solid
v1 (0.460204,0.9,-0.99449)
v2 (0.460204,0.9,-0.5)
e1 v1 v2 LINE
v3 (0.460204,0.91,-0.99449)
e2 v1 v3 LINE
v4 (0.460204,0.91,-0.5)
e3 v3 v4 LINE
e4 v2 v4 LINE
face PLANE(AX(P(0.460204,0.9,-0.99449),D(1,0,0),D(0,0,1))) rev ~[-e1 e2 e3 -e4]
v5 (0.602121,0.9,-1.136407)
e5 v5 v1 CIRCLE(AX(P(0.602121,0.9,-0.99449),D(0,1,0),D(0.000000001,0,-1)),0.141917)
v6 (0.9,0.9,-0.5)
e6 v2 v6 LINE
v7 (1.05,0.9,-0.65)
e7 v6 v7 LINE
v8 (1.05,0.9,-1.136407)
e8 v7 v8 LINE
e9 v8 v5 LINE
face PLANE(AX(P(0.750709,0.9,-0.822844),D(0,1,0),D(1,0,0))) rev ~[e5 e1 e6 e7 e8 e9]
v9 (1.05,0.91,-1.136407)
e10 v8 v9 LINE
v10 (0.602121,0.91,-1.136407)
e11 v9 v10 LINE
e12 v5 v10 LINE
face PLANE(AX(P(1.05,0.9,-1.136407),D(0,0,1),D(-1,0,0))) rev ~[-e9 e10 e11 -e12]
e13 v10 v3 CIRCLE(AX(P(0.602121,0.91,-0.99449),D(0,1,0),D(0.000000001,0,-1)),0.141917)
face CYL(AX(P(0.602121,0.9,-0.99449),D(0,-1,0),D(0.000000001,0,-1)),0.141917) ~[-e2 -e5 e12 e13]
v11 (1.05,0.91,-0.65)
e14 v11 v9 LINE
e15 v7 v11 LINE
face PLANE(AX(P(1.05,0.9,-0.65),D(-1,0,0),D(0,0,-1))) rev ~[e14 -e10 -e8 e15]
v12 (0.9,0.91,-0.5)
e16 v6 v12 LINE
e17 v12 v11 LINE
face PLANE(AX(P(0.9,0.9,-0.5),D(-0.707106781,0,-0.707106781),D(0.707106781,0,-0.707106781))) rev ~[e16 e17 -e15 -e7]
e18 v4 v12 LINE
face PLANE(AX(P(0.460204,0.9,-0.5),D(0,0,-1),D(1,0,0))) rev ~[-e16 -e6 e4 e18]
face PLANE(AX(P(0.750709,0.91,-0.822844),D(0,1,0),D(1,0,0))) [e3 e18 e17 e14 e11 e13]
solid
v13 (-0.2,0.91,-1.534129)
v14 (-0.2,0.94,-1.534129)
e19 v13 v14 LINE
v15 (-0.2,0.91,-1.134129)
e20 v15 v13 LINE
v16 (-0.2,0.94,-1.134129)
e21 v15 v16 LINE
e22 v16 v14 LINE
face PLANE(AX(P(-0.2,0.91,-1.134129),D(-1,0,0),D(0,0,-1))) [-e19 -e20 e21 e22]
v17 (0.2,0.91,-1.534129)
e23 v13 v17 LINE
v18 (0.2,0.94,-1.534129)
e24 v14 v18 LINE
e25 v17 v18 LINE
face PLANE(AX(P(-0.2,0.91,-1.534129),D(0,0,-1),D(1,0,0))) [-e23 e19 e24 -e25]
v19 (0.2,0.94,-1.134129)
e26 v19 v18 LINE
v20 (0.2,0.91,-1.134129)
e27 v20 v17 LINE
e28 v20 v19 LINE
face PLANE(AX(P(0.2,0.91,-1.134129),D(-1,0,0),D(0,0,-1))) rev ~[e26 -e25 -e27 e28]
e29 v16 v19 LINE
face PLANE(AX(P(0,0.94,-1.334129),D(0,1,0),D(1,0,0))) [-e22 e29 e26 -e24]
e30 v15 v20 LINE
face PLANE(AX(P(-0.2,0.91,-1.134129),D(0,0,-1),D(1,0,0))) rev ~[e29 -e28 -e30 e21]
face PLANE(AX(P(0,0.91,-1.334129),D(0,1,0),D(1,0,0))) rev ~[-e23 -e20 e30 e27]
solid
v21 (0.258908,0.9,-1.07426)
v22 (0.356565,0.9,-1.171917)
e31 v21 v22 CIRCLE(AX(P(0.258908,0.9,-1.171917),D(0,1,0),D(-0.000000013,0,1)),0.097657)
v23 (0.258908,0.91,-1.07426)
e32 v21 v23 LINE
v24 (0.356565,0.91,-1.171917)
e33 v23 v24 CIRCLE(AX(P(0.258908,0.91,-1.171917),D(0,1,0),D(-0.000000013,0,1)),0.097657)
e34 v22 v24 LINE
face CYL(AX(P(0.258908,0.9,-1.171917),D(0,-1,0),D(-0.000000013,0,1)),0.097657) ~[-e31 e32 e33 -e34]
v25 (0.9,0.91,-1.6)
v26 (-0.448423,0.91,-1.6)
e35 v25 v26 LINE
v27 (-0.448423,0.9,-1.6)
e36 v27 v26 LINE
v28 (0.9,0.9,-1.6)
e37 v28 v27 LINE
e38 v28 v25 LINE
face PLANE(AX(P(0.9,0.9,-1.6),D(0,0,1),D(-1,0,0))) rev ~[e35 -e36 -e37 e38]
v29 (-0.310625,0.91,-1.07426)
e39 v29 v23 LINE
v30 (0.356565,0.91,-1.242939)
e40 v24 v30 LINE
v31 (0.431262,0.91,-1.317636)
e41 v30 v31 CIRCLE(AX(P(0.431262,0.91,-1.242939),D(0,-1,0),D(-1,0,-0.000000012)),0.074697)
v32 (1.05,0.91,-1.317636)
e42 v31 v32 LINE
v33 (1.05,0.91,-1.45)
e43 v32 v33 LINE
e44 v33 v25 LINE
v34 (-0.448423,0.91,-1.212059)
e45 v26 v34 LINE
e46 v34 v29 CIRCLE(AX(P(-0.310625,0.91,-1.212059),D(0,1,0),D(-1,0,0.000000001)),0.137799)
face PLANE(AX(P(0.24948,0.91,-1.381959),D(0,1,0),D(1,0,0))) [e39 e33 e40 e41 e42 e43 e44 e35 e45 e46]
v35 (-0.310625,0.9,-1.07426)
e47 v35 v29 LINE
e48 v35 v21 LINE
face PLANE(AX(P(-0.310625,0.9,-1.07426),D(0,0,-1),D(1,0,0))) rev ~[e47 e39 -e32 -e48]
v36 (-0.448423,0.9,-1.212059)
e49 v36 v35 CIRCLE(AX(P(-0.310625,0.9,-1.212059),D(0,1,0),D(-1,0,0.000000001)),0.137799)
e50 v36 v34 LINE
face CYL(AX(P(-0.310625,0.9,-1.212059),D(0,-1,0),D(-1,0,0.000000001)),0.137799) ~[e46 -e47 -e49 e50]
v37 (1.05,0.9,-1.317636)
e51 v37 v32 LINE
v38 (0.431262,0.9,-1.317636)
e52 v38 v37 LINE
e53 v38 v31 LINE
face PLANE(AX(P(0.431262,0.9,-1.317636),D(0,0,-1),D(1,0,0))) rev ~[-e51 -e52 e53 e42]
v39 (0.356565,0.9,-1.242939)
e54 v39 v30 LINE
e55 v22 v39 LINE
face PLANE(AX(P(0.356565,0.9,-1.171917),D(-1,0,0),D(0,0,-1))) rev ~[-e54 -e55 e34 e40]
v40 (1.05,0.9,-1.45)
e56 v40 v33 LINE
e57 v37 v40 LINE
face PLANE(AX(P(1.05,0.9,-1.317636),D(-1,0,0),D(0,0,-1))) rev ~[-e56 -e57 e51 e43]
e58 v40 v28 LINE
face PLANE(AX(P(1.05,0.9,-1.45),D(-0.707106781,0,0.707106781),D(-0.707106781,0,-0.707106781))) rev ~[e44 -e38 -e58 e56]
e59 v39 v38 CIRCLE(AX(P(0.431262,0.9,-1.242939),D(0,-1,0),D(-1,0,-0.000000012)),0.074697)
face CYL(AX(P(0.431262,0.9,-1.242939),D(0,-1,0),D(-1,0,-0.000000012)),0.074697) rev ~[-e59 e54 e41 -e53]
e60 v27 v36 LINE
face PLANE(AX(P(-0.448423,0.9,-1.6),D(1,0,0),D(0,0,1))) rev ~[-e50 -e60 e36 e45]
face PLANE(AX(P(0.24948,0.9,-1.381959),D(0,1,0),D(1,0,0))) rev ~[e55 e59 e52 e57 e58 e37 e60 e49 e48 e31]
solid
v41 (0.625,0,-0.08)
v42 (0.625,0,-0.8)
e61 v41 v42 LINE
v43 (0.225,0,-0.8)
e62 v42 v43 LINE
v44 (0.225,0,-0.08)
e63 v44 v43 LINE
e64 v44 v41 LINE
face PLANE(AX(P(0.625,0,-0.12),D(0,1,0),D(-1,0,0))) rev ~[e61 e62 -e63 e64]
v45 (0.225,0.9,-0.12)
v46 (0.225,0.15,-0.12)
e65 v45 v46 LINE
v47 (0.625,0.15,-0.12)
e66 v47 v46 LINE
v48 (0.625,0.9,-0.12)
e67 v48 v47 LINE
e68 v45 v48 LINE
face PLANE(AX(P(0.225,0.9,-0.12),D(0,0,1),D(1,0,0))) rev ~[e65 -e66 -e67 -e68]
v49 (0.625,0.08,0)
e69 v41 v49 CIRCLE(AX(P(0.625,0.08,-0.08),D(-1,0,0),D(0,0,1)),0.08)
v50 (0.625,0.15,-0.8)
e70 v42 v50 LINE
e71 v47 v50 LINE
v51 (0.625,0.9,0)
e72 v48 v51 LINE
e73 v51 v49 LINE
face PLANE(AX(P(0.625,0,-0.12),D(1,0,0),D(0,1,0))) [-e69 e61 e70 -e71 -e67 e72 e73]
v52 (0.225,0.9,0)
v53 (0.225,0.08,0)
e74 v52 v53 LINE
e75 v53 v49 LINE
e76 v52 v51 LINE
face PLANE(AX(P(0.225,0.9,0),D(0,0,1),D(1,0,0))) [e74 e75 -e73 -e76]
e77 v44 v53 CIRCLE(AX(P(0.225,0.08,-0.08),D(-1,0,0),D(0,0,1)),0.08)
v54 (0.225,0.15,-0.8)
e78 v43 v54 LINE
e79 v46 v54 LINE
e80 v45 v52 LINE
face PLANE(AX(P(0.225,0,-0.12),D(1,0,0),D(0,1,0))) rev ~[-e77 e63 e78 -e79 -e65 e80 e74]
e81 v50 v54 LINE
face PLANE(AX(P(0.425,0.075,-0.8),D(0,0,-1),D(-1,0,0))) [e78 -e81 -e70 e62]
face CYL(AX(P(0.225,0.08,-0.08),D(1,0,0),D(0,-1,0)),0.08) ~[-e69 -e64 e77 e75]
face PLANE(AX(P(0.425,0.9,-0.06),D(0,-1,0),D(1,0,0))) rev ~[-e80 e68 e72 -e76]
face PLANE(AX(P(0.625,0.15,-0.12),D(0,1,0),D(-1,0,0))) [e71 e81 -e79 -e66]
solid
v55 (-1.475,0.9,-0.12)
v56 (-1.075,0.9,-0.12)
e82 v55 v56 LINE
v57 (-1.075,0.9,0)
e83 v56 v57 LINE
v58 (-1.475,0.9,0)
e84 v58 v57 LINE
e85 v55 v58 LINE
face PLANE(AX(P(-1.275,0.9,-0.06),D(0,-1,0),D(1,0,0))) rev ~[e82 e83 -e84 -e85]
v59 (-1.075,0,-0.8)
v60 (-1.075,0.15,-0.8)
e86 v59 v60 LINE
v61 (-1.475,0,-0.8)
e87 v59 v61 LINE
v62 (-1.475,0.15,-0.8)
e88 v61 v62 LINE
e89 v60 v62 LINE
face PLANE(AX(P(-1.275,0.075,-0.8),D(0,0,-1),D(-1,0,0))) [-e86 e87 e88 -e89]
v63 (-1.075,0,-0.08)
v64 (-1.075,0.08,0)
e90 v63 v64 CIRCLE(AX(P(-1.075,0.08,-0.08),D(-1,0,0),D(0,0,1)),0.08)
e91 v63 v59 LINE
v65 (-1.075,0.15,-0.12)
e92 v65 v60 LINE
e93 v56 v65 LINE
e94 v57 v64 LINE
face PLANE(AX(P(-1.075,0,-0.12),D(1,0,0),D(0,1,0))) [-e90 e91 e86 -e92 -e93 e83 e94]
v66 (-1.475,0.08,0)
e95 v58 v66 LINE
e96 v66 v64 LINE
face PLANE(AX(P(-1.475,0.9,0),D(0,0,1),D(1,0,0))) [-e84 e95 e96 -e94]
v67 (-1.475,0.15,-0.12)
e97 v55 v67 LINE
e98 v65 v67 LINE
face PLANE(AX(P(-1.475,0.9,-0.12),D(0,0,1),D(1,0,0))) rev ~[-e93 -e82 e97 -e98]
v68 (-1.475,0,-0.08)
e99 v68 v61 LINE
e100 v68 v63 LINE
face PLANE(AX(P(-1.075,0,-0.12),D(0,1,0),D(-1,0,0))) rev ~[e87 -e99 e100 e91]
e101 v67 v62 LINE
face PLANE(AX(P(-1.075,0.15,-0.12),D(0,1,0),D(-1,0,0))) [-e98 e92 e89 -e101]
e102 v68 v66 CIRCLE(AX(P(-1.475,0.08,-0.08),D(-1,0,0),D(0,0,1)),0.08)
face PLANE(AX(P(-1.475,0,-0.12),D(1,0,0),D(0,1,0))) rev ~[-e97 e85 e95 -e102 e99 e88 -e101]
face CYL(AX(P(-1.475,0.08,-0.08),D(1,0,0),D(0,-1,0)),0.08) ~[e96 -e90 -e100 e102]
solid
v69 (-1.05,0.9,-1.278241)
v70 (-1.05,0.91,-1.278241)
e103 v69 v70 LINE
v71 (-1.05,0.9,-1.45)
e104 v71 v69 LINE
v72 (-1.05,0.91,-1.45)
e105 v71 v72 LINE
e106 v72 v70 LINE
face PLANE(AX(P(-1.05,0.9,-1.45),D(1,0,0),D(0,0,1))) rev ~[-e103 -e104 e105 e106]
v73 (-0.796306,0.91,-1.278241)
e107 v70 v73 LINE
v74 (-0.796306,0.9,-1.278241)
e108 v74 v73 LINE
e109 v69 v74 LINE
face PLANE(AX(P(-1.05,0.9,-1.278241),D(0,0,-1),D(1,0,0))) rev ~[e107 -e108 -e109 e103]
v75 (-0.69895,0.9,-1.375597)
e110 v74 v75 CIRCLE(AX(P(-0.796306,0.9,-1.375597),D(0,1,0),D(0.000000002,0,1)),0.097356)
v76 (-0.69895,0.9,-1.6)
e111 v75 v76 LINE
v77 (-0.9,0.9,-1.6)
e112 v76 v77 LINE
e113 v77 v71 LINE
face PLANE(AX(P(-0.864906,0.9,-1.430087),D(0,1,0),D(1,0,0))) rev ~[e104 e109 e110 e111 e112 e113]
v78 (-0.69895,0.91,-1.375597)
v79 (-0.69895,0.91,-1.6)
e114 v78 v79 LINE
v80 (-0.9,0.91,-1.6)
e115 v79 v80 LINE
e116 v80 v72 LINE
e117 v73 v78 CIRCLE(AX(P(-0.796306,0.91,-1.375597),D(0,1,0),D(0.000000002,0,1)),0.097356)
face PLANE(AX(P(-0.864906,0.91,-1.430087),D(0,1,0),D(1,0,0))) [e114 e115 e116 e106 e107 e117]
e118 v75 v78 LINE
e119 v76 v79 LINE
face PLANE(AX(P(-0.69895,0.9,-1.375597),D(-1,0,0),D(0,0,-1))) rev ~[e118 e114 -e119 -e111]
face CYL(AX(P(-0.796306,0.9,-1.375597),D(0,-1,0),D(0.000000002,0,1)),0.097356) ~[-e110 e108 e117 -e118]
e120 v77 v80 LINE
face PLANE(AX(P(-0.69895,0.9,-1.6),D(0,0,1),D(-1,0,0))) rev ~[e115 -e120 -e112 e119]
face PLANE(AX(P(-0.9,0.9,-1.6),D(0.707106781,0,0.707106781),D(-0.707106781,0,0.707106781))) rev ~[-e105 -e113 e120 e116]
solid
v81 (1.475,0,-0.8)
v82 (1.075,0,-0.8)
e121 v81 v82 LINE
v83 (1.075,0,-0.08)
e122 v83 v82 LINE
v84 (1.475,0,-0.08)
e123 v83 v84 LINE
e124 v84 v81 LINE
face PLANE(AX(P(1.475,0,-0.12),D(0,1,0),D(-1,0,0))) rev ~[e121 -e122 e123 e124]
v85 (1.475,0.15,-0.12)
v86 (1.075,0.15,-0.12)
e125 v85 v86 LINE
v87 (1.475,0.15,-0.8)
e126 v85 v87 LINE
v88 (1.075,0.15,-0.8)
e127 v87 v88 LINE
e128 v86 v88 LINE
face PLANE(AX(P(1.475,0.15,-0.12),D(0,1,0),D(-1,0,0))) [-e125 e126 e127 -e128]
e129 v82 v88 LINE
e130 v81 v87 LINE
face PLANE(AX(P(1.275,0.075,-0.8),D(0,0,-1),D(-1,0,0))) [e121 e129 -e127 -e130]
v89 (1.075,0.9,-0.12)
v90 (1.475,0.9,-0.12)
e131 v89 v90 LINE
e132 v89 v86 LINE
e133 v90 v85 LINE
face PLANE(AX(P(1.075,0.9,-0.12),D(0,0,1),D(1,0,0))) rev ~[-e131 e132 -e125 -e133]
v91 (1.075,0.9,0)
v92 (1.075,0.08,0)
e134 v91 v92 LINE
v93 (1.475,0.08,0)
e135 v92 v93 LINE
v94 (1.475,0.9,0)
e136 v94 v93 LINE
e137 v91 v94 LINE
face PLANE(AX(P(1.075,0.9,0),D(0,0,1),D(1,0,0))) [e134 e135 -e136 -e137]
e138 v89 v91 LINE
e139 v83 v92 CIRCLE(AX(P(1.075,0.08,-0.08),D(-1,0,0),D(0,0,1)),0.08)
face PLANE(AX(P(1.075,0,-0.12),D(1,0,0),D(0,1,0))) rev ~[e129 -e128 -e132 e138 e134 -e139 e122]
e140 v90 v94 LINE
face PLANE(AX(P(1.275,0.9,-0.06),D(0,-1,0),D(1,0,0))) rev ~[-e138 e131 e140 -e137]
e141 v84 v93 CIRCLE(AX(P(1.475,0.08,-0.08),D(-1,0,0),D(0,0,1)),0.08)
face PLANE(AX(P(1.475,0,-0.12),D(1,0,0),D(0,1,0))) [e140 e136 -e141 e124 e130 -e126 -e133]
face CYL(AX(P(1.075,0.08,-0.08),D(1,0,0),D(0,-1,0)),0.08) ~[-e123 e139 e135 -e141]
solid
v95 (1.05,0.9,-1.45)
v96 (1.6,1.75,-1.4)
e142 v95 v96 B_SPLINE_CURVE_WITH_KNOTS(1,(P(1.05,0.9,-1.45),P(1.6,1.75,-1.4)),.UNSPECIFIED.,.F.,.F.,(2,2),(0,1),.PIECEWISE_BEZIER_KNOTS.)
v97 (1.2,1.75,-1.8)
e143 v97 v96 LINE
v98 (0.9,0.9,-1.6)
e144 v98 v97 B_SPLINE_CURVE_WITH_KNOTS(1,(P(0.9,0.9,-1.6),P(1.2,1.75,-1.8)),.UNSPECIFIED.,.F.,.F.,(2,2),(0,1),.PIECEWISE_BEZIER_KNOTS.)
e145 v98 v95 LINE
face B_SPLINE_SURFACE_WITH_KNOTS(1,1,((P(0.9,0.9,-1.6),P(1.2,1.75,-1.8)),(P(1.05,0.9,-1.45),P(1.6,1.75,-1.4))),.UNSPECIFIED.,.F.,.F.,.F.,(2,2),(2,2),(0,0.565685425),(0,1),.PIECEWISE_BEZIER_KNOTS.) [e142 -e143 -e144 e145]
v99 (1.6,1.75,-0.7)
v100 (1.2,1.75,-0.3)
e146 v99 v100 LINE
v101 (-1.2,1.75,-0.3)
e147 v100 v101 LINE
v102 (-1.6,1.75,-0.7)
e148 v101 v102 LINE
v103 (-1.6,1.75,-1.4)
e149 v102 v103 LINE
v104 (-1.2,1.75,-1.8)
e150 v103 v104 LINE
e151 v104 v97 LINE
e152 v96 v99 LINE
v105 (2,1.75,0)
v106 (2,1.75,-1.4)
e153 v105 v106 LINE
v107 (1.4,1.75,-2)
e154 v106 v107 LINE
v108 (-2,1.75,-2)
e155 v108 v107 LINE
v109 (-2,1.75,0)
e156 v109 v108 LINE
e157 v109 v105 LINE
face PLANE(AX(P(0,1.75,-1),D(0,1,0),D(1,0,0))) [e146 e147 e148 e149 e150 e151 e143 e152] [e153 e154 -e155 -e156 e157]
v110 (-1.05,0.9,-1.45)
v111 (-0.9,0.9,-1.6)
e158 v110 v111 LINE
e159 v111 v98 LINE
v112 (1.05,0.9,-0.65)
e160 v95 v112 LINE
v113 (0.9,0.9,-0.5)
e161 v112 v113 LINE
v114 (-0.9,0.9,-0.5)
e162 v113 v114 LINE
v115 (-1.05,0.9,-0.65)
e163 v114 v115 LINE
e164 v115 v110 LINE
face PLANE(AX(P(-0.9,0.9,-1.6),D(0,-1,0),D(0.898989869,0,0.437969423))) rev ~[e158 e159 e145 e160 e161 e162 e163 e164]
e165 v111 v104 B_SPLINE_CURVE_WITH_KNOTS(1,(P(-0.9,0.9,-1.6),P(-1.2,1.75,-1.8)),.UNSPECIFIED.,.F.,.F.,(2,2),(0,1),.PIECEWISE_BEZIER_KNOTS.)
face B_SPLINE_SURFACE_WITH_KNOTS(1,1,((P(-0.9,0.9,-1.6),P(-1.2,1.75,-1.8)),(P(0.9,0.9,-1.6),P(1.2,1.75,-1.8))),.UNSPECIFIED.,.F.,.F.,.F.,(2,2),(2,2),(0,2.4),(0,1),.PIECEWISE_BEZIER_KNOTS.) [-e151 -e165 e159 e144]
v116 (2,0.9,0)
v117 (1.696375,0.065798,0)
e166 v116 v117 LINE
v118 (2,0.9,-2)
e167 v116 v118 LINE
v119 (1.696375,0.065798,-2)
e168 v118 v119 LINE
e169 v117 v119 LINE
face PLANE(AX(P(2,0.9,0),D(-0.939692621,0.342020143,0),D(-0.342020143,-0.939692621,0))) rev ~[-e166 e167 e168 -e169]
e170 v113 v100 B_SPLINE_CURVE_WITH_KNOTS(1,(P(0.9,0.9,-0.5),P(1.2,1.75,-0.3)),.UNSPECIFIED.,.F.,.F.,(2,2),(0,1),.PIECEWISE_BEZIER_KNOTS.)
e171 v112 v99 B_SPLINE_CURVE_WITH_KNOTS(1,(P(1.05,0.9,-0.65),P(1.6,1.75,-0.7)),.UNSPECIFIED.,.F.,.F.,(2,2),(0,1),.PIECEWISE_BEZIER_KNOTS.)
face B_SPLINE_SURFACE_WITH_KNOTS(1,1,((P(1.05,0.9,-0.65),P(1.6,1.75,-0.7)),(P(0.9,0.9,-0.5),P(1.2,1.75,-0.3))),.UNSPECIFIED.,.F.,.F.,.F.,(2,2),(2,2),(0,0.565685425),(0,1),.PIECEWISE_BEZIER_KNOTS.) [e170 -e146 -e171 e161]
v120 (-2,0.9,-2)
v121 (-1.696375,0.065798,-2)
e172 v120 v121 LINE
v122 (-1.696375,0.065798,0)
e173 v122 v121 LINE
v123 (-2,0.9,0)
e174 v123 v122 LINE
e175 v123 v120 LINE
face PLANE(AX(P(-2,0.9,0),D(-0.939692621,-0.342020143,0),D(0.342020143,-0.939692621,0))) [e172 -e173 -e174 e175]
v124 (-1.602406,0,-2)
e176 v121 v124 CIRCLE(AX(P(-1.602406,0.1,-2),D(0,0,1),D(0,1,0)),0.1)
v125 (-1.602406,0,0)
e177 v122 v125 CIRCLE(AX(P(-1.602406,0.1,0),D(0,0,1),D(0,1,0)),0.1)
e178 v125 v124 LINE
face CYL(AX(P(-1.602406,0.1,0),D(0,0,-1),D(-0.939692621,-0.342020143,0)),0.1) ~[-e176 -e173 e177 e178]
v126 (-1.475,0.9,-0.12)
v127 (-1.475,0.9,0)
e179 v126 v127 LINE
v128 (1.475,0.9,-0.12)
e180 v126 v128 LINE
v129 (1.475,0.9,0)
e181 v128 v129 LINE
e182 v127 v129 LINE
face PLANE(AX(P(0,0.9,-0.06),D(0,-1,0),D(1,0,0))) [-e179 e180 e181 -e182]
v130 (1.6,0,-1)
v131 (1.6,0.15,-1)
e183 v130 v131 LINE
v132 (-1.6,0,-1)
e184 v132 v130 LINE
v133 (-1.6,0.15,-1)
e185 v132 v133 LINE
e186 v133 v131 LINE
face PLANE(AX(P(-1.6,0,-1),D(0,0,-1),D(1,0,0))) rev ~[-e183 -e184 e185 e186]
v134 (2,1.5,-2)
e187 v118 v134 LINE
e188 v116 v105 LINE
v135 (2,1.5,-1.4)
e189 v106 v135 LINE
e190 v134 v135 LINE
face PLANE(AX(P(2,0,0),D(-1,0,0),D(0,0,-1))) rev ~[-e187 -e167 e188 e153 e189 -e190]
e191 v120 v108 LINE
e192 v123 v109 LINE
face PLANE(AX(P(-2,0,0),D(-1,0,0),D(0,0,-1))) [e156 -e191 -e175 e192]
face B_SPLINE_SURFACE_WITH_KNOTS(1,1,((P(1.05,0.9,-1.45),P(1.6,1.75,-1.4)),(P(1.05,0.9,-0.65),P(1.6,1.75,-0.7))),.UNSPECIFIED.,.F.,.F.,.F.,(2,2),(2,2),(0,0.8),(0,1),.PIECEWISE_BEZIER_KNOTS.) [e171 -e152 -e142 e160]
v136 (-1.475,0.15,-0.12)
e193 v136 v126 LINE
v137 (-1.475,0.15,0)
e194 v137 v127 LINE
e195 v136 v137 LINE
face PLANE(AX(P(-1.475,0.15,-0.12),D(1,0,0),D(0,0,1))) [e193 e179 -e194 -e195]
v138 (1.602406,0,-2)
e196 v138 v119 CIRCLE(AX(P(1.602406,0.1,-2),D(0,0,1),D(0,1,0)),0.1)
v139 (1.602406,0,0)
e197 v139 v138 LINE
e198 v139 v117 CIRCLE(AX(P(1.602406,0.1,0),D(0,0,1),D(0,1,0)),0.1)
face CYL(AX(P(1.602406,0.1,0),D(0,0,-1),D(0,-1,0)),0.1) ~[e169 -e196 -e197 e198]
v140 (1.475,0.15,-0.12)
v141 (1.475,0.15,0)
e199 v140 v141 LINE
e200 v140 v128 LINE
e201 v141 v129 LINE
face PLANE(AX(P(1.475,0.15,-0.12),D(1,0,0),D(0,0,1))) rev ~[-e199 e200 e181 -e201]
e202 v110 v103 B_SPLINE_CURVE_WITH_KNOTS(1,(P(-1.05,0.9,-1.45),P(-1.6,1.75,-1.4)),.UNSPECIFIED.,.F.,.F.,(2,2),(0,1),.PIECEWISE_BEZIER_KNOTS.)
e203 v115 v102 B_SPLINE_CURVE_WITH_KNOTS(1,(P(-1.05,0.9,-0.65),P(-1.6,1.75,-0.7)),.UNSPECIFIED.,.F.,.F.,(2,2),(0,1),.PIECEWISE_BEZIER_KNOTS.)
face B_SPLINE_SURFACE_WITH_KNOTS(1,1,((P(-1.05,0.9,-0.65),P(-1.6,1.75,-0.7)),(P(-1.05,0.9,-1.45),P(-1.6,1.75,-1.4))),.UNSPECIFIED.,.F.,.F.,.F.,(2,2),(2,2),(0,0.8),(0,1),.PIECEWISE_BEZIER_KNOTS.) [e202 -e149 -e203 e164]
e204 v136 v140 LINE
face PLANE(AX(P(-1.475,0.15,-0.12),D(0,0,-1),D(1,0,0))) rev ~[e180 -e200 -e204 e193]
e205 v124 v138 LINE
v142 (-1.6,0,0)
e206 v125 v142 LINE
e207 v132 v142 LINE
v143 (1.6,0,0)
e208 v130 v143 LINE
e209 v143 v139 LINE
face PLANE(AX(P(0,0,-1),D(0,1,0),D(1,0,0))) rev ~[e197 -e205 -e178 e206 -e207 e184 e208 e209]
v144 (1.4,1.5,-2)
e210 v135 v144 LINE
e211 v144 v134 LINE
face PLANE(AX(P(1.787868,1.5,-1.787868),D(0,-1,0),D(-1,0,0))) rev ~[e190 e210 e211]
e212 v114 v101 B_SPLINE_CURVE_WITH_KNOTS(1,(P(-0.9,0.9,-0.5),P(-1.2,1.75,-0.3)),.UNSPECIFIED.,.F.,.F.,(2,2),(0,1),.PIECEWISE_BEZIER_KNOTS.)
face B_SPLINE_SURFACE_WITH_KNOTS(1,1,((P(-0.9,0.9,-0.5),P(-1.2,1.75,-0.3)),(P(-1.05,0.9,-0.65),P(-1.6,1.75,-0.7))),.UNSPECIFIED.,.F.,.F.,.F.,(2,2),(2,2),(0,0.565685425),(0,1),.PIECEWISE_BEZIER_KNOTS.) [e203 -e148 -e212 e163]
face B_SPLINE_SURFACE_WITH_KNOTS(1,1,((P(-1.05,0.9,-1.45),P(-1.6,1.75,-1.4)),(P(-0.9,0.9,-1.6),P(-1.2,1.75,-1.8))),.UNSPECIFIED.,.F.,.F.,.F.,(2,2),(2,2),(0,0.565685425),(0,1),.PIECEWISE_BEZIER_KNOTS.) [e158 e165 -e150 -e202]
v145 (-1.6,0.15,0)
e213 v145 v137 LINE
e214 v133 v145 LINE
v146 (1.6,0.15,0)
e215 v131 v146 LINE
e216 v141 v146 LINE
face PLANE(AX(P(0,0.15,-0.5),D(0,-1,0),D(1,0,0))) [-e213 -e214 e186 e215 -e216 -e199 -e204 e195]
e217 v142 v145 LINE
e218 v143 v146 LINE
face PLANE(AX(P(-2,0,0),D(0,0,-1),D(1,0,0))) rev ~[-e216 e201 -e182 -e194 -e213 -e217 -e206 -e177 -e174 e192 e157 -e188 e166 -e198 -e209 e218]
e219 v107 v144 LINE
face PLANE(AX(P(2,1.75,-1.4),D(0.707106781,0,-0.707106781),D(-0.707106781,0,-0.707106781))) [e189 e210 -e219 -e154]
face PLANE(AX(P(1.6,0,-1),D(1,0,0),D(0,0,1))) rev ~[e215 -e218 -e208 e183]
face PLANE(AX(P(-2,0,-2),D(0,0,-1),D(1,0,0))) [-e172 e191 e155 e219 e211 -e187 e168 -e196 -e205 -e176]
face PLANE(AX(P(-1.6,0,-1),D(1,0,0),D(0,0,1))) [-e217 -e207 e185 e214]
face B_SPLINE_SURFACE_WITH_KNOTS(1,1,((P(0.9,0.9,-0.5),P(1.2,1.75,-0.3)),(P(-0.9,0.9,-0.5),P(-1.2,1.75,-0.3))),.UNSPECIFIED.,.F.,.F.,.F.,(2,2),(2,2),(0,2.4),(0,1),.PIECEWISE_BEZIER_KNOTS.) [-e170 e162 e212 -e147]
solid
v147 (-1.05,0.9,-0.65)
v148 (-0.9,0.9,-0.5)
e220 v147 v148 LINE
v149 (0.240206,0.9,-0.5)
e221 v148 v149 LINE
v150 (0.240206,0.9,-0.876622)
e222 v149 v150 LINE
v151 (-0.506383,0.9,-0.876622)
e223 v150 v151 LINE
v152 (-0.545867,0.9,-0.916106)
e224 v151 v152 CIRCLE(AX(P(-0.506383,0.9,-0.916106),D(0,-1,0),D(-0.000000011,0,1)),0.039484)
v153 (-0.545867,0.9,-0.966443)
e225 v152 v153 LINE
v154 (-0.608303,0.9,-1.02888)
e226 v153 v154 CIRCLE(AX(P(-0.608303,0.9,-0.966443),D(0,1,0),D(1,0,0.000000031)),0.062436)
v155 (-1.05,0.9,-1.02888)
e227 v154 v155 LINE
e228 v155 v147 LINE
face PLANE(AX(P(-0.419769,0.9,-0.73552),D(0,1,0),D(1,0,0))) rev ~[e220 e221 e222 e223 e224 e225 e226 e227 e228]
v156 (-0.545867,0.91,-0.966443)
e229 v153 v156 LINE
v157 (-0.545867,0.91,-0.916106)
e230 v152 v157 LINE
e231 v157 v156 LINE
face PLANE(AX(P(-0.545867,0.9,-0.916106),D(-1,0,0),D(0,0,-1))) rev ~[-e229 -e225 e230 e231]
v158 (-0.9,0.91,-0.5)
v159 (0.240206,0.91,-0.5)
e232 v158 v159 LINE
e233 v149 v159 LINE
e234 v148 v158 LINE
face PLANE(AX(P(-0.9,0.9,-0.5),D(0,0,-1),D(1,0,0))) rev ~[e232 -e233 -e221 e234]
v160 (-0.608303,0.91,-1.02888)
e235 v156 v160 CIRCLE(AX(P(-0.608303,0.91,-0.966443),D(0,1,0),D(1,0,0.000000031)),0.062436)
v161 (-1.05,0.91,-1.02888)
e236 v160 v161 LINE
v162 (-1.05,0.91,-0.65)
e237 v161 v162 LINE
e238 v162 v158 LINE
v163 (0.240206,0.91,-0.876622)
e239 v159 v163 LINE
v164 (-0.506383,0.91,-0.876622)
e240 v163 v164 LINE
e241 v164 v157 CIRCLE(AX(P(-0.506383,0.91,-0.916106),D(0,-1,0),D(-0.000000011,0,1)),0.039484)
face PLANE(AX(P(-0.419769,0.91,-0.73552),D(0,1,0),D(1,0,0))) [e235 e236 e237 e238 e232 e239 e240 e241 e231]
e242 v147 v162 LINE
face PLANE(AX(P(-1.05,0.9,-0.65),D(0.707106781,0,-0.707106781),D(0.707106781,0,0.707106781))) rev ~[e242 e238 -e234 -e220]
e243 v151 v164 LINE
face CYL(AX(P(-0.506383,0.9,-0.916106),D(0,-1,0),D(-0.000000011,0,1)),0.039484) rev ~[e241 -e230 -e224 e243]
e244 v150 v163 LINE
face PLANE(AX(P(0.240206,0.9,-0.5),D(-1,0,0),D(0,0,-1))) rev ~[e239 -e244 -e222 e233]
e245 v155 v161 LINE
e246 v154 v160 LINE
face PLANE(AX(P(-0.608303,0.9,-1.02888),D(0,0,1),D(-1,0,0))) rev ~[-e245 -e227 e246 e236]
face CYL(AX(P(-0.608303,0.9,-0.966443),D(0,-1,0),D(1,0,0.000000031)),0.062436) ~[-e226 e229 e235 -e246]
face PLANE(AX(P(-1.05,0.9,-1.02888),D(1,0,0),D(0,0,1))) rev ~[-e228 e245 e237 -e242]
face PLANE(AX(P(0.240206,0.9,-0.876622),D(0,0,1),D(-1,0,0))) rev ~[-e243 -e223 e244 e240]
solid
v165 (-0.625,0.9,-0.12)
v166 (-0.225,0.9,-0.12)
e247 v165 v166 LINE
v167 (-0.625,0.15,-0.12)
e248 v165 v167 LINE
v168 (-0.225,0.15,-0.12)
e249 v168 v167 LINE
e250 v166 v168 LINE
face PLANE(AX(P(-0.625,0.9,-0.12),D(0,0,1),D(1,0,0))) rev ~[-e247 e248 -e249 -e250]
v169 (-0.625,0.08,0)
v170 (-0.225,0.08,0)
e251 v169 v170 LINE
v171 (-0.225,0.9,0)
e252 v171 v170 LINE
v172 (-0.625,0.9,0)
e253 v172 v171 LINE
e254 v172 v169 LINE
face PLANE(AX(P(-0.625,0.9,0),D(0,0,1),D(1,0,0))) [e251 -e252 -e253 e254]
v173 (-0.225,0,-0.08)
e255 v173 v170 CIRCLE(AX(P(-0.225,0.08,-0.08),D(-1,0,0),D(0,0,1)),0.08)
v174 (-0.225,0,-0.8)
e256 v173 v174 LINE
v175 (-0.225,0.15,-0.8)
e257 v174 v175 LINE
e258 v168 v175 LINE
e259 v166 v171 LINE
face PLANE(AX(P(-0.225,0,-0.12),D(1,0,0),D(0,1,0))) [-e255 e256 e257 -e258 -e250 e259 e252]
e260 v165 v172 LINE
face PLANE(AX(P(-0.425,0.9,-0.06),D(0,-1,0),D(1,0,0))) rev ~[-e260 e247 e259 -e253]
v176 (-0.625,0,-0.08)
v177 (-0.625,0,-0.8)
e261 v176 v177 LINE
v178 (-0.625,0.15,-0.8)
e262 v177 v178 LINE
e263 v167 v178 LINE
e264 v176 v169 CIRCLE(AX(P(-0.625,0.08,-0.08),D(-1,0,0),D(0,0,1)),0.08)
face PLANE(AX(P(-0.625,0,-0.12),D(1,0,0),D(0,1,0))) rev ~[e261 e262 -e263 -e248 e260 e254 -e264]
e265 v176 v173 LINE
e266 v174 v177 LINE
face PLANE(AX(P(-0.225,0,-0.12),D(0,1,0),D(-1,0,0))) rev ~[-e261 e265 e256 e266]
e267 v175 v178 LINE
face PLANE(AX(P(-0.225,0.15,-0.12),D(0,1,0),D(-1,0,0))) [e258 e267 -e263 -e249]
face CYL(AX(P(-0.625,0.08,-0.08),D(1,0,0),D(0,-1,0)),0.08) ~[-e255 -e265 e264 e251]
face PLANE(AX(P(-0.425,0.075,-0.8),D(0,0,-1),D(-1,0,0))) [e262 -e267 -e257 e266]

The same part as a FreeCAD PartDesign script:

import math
import FreeCAD as App
import Part
import Sketcher
from FreeCAD import Vector
Q = App.Units.Quantity


def edges_at(feature, points):
    """Names of the edges that pass closest to the given points."""
    edges = feature.Shape.Edges
    near = lambda p: min(range(len(edges)), key=lambda i: edges[i].distToShape(Part.Vertex(*p))[0])
    return sorted({f"Edge{near(p) + 1}" for p in points})


def add_polygon(sketch, points):
    """Adds a closed chain of lines whose ends are joined by coincident constraints."""
    first, n = sketch.GeometryCount, len(points)
    for a, b in zip(points, points[1:] + points[:1]):
        sketch.addGeometry(Part.LineSegment(App.Vector(*a, 0), App.Vector(*b, 0)), False)
    for i in range(n):
        sketch.addConstraint(Sketcher.Constraint("Coincident", first + i, 2, first + (i + 1) % n, 1))

doc = App.newDocument("Part")
body = doc.addObject("PartDesign::Body", "Body")

sketch1 = body.newObject("Sketcher::SketchObject", "Sketch")
sketch1.AttachmentSupport = (doc.getObject("XZ_Plane"), [""])
sketch1.MapMode = "FlatFace"
add_polygon(sketch1, [(-2, -2), (-2, 0), (2, 0), (2, -2)])
sketch1.addConstraint([
    Sketcher.Constraint("Vertical", 0),
    Sketcher.Constraint("Horizontal", 1),
    Sketcher.Constraint("Vertical", 2),
    Sketcher.Constraint("Horizontal", 3),
    Sketcher.Constraint("Symmetric", 0, 2, 1, 2, -1, 1),
    Sketcher.Constraint("DistanceX", 1, 1, 1, 2, 4.0),
    Sketcher.Constraint("DistanceY", 0, 1, 0, 2, 2.0),
])
pad1 = body.newObject("PartDesign::Pad", "Pad")
pad1.Profile = sketch1
pad1.Length = 1.75
pad1.Reversed = True

sketch2 = body.newObject("Sketcher::SketchObject", "Sketch001")
sketch2.AttachmentSupport = (doc.getObject("XY_Plane"), [""])
sketch2.MapMode = "FlatFace"
add_polygon(sketch2, [(-1.67, 0), (-2, 0.9), (-2, 0)])
sketch2.addConstraint([
    Sketcher.Constraint("Vertical", 1),
    Sketcher.Constraint("Horizontal", 2),
    Sketcher.Constraint("PointOnObject", 1, 2, -1),
    Sketcher.Constraint("Angle", 0, Q("110 deg")),
    Sketcher.Constraint("DistanceY", 1, 2, 1, 1, 0.9),
    Sketcher.Constraint("DistanceX", 0, 2, -1, 1, 2.0),
])
pocket1 = body.newObject("PartDesign::Pocket", "Pocket")
pocket1.Profile = sketch2
pocket1.Type = "UpToFirst"

sketch3 = body.newObject("Sketcher::SketchObject", "Sketch002")
sketch3.AttachmentSupport = (doc.getObject("XY_Plane"), [""])
sketch3.MapMode = "FlatFace"
add_polygon(sketch3, [(2, 0.9), (1.67, 0), (2, 0)])
sketch3.addConstraint([
    Sketcher.Constraint("Horizontal", 1),
    Sketcher.Constraint("Vertical", 2),
    Sketcher.Constraint("PointOnObject", 0, 2, -1),
    Sketcher.Constraint("Angle", 0, Q("-110 deg")),
    Sketcher.Constraint("DistanceY", 2, 1, 2, 2, 0.9),
    Sketcher.Constraint("DistanceX", -1, 1, 1, 2, 2.0),
])
pocket2 = body.newObject("PartDesign::Pocket", "Pocket001")
pocket2.Profile = sketch3
pocket2.Type = "UpToFirst"

sketch4 = body.newObject("Sketcher::SketchObject", "Sketch003")
sketch4.AttachmentSupport = (doc.getObject("XZ_Plane"), [""])
sketch4.MapMode = "FlatFace"
sketch4.AttachmentOffset = App.Placement(Vector(0, 0, -0.9), App.Rotation())
add_polygon(sketch4, [(0.9, -1.6), (-0.9, -1.6), (-1.05, -1.45), (-1.05, -0.65), (-0.9, -0.5), (0.9, -0.5), (1.05, -0.65), (1.05, -1.45)])
sketch4.addConstraint([
    Sketcher.Constraint("Horizontal", 0),
    Sketcher.Constraint("Vertical", 2),
    Sketcher.Constraint("Horizontal", 4),
    Sketcher.Constraint("Vertical", 6),
    Sketcher.Constraint("Symmetric", 2, 2, 5, 2, -2),
    Sketcher.Constraint("Perpendicular", 1, 3),
    Sketcher.Constraint("Perpendicular", 3, 5),
    Sketcher.Constraint("Perpendicular", 5, 7),
    Sketcher.Constraint("Horizontal", 1, 2, 6, 2),
    Sketcher.Constraint("Vertical", 0, 2, 3, 2),
    Sketcher.Constraint("Vertical", 4, 2, 7, 2),
    Sketcher.Constraint("DistanceX", 0, 2, 0, 1, 1.8),
    Sketcher.Constraint("DistanceY", 2, 1, 2, 2, 0.8),
    Sketcher.Constraint("DistanceY", 0, 2, -1, 1, 1.6),
    Sketcher.Constraint("DistanceY", 3, 2, -1, 1, 0.5),
])

sketch5 = body.newObject("Sketcher::SketchObject", "Sketch004")
sketch5.AttachmentSupport = (doc.getObject("XZ_Plane"), [""])
sketch5.MapMode = "FlatFace"
sketch5.AttachmentOffset = App.Placement(Vector(0, 0, -1.75), App.Rotation())
add_polygon(sketch5, [(-1.2, -1.8), (-1.6, -1.4), (-1.6, -0.7), (-1.2, -0.3), (1.2, -0.3), (1.6, -0.7), (1.6, -1.4), (1.2, -1.8)])
sketch5.addConstraint([
    Sketcher.Constraint("Vertical", 1),
    Sketcher.Constraint("Horizontal", 3),
    Sketcher.Constraint("Vertical", 5),
    Sketcher.Constraint("Horizontal", 7),
    Sketcher.Constraint("Symmetric", 1, 2, 4, 2, -2),
    Sketcher.Constraint("Perpendicular", 0, 2),
    Sketcher.Constraint("Perpendicular", 2, 4),
    Sketcher.Constraint("Perpendicular", 4, 6),
    Sketcher.Constraint("Horizontal", 0, 2, 5, 2),
    Sketcher.Constraint("Vertical", 3, 2, 6, 2),
    Sketcher.Constraint("Vertical", 2, 2, 7, 2),
    Sketcher.Constraint("DistanceX", 3, 1, 3, 2, 2.4),
    Sketcher.Constraint("DistanceY", 1, 1, 1, 2, 0.7),
    Sketcher.Constraint("DistanceX", 0, 2, -1, 1, 1.6),
    Sketcher.Constraint("DistanceY", 0, 2, -1, 1, 1.4),
])

subtractiveloft = body.newObject("PartDesign::SubtractiveLoft", "SubtractiveLoft")
subtractiveloft.Profile = sketch4
subtractiveloft.Sections = [sketch5]

sketch6 = body.newObject("Sketcher::SketchObject", "Sketch005")
sketch6.AttachmentSupport = (doc.getObject("XZ_Plane"), [""])
sketch6.MapMode = "FlatFace"
sketch6.AttachmentOffset = App.Placement(Vector(0, 0, -1.75), App.Rotation())
add_polygon(sketch6, [(1.4, -2), (2, -1.4), (2, -2)])
sketch6.addConstraint([
    Sketcher.Constraint("Vertical", 1),
    Sketcher.Constraint("Horizontal", 2),
    Sketcher.Constraint("Equal", 2, 1),
    Sketcher.Constraint("DistanceX", 2, 2, 2, 1, 0.6),
    Sketcher.Constraint("DistanceX", -1, 1, 0, 2, 2.0),
    Sketcher.Constraint("DistanceY", 1, 2, -1, 1, 2.0),
])
pocket3 = body.newObject("PartDesign::Pocket", "Pocket002")
pocket3.Profile = sketch6
pocket3.Length = 0.25
pocket3.Reversed = True
doc.recompute()

fillet = body.newObject("PartDesign::Fillet", "Fillet")
fillet.Base = (pocket3, edges_at(pocket3, [(-1.672, 0, -1), (1.672, 0, -1)]))
fillet.Radius = 0.1

sketch7 = body.newObject("Sketcher::SketchObject", "Sketch006")
sketch7.AttachmentSupport = (doc.getObject("XZ_Plane"), [""])
sketch7.MapMode = "FlatFace"
add_polygon(sketch7, [(-1.6, 0), (-1.6, -1), (1.6, -1), (1.6, 0)])
sketch7.addConstraint([
    Sketcher.Constraint("Vertical", 0),
    Sketcher.Constraint("Horizontal", 1),
    Sketcher.Constraint("Vertical", 2),
    Sketcher.Constraint("Horizontal", 3),
    Sketcher.Constraint("Symmetric", 2, 2, 3, 2, -1, 1),
    Sketcher.Constraint("DistanceY", 0, 2, 0, 1, 1.0),
    Sketcher.Constraint("DistanceX", 1, 1, 1, 2, 3.2),
])
pocket4 = body.newObject("PartDesign::Pocket", "Pocket003")
pocket4.Profile = sketch7
pocket4.Length = 0.15

sketch8 = body.newObject("Sketcher::SketchObject", "Sketch007")
sketch8.AttachmentSupport = (doc.getObject("XZ_Plane"), [""])
sketch8.MapMode = "FlatFace"
sketch8.AttachmentOffset = App.Placement(Vector(0, 0, -0.15), App.Rotation())
add_polygon(sketch8, [(-1.48, 0), (-1.48, -0.12), (1.48, -0.12), (1.48, 0)])
sketch8.addConstraint([
    Sketcher.Constraint("Vertical", 0),
    Sketcher.Constraint("Horizontal", 1),
    Sketcher.Constraint("Vertical", 2),
    Sketcher.Constraint("Horizontal", 3),
    Sketcher.Constraint("Symmetric", 2, 2, 3, 2, -1, 1),
    Sketcher.Constraint("DistanceX", 1, 1, 1, 2, 2.95),
    Sketcher.Constraint("DistanceY", 0, 2, 0, 1, 0.12),
])
pocket5 = body.newObject("PartDesign::Pocket", "Pocket004")
pocket5.Profile = sketch8
pocket5.Length = 0.75
body2 = doc.addObject("PartDesign::Body", "Body001")

sketch9 = body2.newObject("Sketcher::SketchObject", "Sketch008")
sketch9.AttachmentSupport = (doc.getObject("XZ_Plane001"), [""])
sketch9.MapMode = "FlatFace"
sketch9.AttachmentOffset = App.Placement(Vector(0, 0, -0.9), App.Rotation())
add_polygon(sketch9, [(-1.48, 0), (-1.48, -0.12), (-1.07, -0.12), (-1.07, 0)])
sketch9.addConstraint([
    Sketcher.Constraint("Vertical", 0),
    Sketcher.Constraint("Horizontal", 1),
    Sketcher.Constraint("Vertical", 2),
    Sketcher.Constraint("Horizontal", 3),
    Sketcher.Constraint("PointOnObject", 2, 2, -1),
    Sketcher.Constraint("DistanceX", 1, 1, 1, 2, 0.4),
    Sketcher.Constraint("DistanceY", 0, 2, 0, 1, 0.12),
    Sketcher.Constraint("DistanceX", 0, 2, -1, 1, 1.475),
])
pad2 = body2.newObject("PartDesign::Pad", "Pad001")
pad2.Profile = sketch9
pad2.Length = 0.9
body3 = doc.addObject("PartDesign::Body", "Body002")

sketch10 = body3.newObject("Sketcher::SketchObject", "Sketch009")
sketch10.AttachmentSupport = (doc.getObject("XZ_Plane002"), [""])
sketch10.MapMode = "FlatFace"
sketch10.AttachmentOffset = App.Placement(Vector(0, 0, -0.9), App.Rotation())
add_polygon(sketch10, [(-0.62, 0), (-0.62, -0.12), (-0.23, -0.12), (-0.23, 0)])
sketch10.addConstraint([
    Sketcher.Constraint("Vertical", 0),
    Sketcher.Constraint("Horizontal", 1),
    Sketcher.Constraint("Vertical", 2),
    Sketcher.Constraint("Horizontal", 3),
    Sketcher.Constraint("PointOnObject", 2, 2, -1),
    Sketcher.Constraint("DistanceX", 1, 1, 1, 2, 0.4),
    Sketcher.Constraint("DistanceY", 0, 2, 0, 1, 0.12),
    Sketcher.Constraint("DistanceX", 0, 2, -1, 1, 0.625),
])
pad3 = body3.newObject("PartDesign::Pad", "Pad002")
pad3.Profile = sketch10
pad3.Length = 0.9
body4 = doc.addObject("PartDesign::Body", "Body003")

sketch11 = body4.newObject("Sketcher::SketchObject", "Sketch010")
sketch11.AttachmentSupport = (doc.getObject("XZ_Plane003"), [""])
sketch11.MapMode = "FlatFace"
sketch11.AttachmentOffset = App.Placement(Vector(0, 0, -0.9), App.Rotation())
add_polygon(sketch11, [(0.23, 0), (0.23, -0.12), (0.62, -0.12), (0.62, 0)])
sketch11.addConstraint([
    Sketcher.Constraint("Vertical", 0),
    Sketcher.Constraint("Horizontal", 1),
    Sketcher.Constraint("Vertical", 2),
    Sketcher.Constraint("Horizontal", 3),
    Sketcher.Constraint("PointOnObject", 2, 2, -1),
    Sketcher.Constraint("DistanceX", 1, 1, 1, 2, 0.4),
    Sketcher.Constraint("DistanceY", 0, 2, 0, 1, 0.12),
    Sketcher.Constraint("DistanceX", -1, 1, 0, 2, 0.225),
])
pad4 = body4.newObject("PartDesign::Pad", "Pad003")
pad4.Profile = sketch11
pad4.Length = 0.9
body5 = doc.addObject("PartDesign::Body", "Body004")

sketch12 = body5.newObject("Sketcher::SketchObject", "Sketch011")
sketch12.AttachmentSupport = (doc.getObject("XZ_Plane004"), [""])
sketch12.MapMode = "FlatFace"
sketch12.AttachmentOffset = App.Placement(Vector(0, 0, -0.9), App.Rotation())
add_polygon(sketch12, [(1.07, 0), (1.07, -0.12), (1.48, -0.12), (1.48, 0)])
sketch12.addConstraint([
    Sketcher.Constraint("Vertical", 0),
    Sketcher.Constraint("Horizontal", 1),
    Sketcher.Constraint("Vertical", 2),
    Sketcher.Constraint("Horizontal", 3),
    Sketcher.Constraint("PointOnObject", 2, 2, -1),
    Sketcher.Constraint("DistanceX", 1, 1, 1, 2, 0.4),
    Sketcher.Constraint("DistanceY", 0, 2, 0, 1, 0.12),
    Sketcher.Constraint("DistanceX", -1, 1, 0, 2, 1.075),
])
pad5 = body5.newObject("PartDesign::Pad", "Pad004")
pad5.Profile = sketch12
pad5.Length = 0.9
body6 = doc.addObject("PartDesign::Body", "Body005")

sketch13 = body6.newObject("Sketcher::SketchObject", "Sketch012")
sketch13.AttachmentSupport = (doc.getObject("XY_Plane005"), [""])
sketch13.MapMode = "FlatFace"
sketch13.AttachmentOffset = App.Placement(Vector(0, 0, -0.12), App.Rotation())
add_polygon(sketch13, [(1.48, 0.15), (1.48, 0), (1.07, 0), (1.07, 0.15)])
sketch13.addConstraint([
    Sketcher.Constraint("Vertical", 0),
    Sketcher.Constraint("Horizontal", 1),
    Sketcher.Constraint("Vertical", 2),
    Sketcher.Constraint("Horizontal", 3),
    Sketcher.Constraint("PointOnObject", 0, 2, -1),
    Sketcher.Constraint("DistanceX", 1, 2, 1, 1, 0.4),
    Sketcher.Constraint("DistanceY", 0, 2, 0, 1, 0.15),
    Sketcher.Constraint("DistanceX", -1, 1, 0, 2, 1.475),
])
pad6 = body6.newObject("PartDesign::Pad", "Pad005")
pad6.Profile = sketch13
pad6.Length = 0.68
pad6.Reversed = True
body7 = doc.addObject("PartDesign::Body", "Body006")

sketch14 = body7.newObject("Sketcher::SketchObject", "Sketch013")
sketch14.AttachmentSupport = (doc.getObject("XY_Plane006"), [""])
sketch14.MapMode = "FlatFace"
sketch14.AttachmentOffset = App.Placement(Vector(0, 0, -0.12), App.Rotation())
add_polygon(sketch14, [(0.62, 0.15), (0.62, 0), (0.23, 0), (0.23, 0.15)])
sketch14.addConstraint([
    Sketcher.Constraint("Vertical", 0),
    Sketcher.Constraint("Horizontal", 1),
    Sketcher.Constraint("Vertical", 2),
    Sketcher.Constraint("Horizontal", 3),
    Sketcher.Constraint("PointOnObject", 0, 2, -1),
    Sketcher.Constraint("DistanceX", 1, 2, 1, 1, 0.4),
    Sketcher.Constraint("DistanceY", 0, 2, 0, 1, 0.15),
    Sketcher.Constraint("DistanceX", -1, 1, 0, 2, 0.625),
])
pad7 = body7.newObject("PartDesign::Pad", "Pad006")
pad7.Profile = sketch14
pad7.Length = 0.68
pad7.Reversed = True
body8 = doc.addObject("PartDesign::Body", "Body007")

sketch15 = body8.newObject("Sketcher::SketchObject", "Sketch014")
sketch15.AttachmentSupport = (doc.getObject("XY_Plane007"), [""])
sketch15.MapMode = "FlatFace"
sketch15.AttachmentOffset = App.Placement(Vector(0, 0, -0.12), App.Rotation())
add_polygon(sketch15, [(-0.23, 0.15), (-0.23, 0), (-0.62, 0), (-0.62, 0.15)])
sketch15.addConstraint([
    Sketcher.Constraint("Vertical", 0),
    Sketcher.Constraint("Horizontal", 1),
    Sketcher.Constraint("Vertical", 2),
    Sketcher.Constraint("Horizontal", 3),
    Sketcher.Constraint("PointOnObject", 0, 2, -1),
    Sketcher.Constraint("DistanceX", 1, 2, 1, 1, 0.4),
    Sketcher.Constraint("DistanceY", 0, 2, 0, 1, 0.15),
    Sketcher.Constraint("DistanceX", 0, 2, -1, 1, 0.225),
])
pad8 = body8.newObject("PartDesign::Pad", "Pad007")
pad8.Profile = sketch15
pad8.Length = 0.68
pad8.Reversed = True
body9 = doc.addObject("PartDesign::Body", "Body008")

sketch16 = body9.newObject("Sketcher::SketchObject", "Sketch015")
sketch16.AttachmentSupport = (doc.getObject("XY_Plane008"), [""])
sketch16.MapMode = "FlatFace"
sketch16.AttachmentOffset = App.Placement(Vector(0, 0, -0.12), App.Rotation())
add_polygon(sketch16, [(-1.07, 0.15), (-1.07, 0), (-1.48, 0), (-1.48, 0.15)])
sketch16.addConstraint([
    Sketcher.Constraint("Vertical", 0),
    Sketcher.Constraint("Horizontal", 1),
    Sketcher.Constraint("Vertical", 2),
    Sketcher.Constraint("Horizontal", 3),
    Sketcher.Constraint("PointOnObject", 0, 2, -1),
    Sketcher.Constraint("DistanceX", 1, 2, 1, 1, 0.4),
    Sketcher.Constraint("DistanceY", 0, 2, 0, 1, 0.15),
    Sketcher.Constraint("DistanceX", 0, 2, -1, 1, 1.075),
])
pad9 = body9.newObject("PartDesign::Pad", "Pad008")
pad9.Profile = sketch16
pad9.Length = 0.68
pad9.Reversed = True
doc.recompute()

boolean = body5.newObject("PartDesign::Boolean", "Boolean")
boolean.Type = "Fuse"
boolean.addObjects([body6])
doc.recompute()

fillet2 = body5.newObject("PartDesign::Fillet", "Fillet001")
fillet2.Base = (boolean, edges_at(boolean, [(1.275, 0, 0)]))
fillet2.Radius = 0.08
doc.recompute()

boolean2 = body2.newObject("PartDesign::Boolean", "Boolean001")
boolean2.Type = "Fuse"
boolean2.addObjects([body9])
doc.recompute()

fillet3 = body2.newObject("PartDesign::Fillet", "Fillet002")
fillet3.Base = (boolean2, edges_at(boolean2, [(-1.275, 0, 0)]))
fillet3.Radius = 0.08
doc.recompute()

boolean3 = body4.newObject("PartDesign::Boolean", "Boolean002")
boolean3.Type = "Fuse"
boolean3.addObjects([body7])
doc.recompute()

fillet4 = body4.newObject("PartDesign::Fillet", "Fillet003")
fillet4.Base = (boolean3, edges_at(boolean3, [(0.425, 0, 0)]))
fillet4.Radius = 0.08
doc.recompute()

boolean4 = body3.newObject("PartDesign::Boolean", "Boolean003")
boolean4.Type = "Fuse"
boolean4.addObjects([body8])
doc.recompute()

fillet5 = body3.newObject("PartDesign::Fillet", "Fillet004")
fillet5.Base = (boolean4, edges_at(boolean4, [(-0.425, 0, 0)]))
fillet5.Radius = 0.08
body10 = doc.addObject("PartDesign::Body", "Body009")

sketch17 = body10.newObject("Sketcher::SketchObject", "Sketch016")
sketch17.AttachmentSupport = (doc.getObject("XZ_Plane009"), [""])
sketch17.MapMode = "FlatFace"
sketch17.AttachmentOffset = App.Placement(Vector(0, 0, -0.9), App.Rotation())
sketch17.addGeometry([
    Part.LineSegment(Vector(1.05, -1.45, 0), Vector(0.9, -1.6, 0)),
    Part.LineSegment(Vector(0.9, -1.6, 0), Vector(-0.45, -1.6, 0)),
    Part.LineSegment(Vector(-0.45, -1.6, 0), Vector(-0.45, -1.21, 0)),
    Part.ArcOfCircle(Part.Circle(Vector(-0.31, -1.21, 0), Vector(0, 0, 1), 0.14), math.radians(90), math.radians(180)),
    Part.LineSegment(Vector(-0.31, -1.07, 0), Vector(0.26, -1.07, 0)),
    Part.ArcOfCircle(Part.Circle(Vector(0.26, -1.17, 0), Vector(0, 0, 1), 0.1), math.radians(0), math.radians(90)),
    Part.LineSegment(Vector(0.36, -1.17, 0), Vector(0.36, -1.24, 0)),
    Part.ArcOfCircle(Part.Circle(Vector(0.43, -1.24, 0), Vector(0, 0, 1), 0.07), math.radians(-180), math.radians(-90)),
    Part.LineSegment(Vector(0.43, -1.32, 0), Vector(1.05, -1.32, 0)),
    Part.LineSegment(Vector(1.05, -1.32, 0), Vector(1.05, -1.45, 0)),
], False)
sketch17.addConstraint([
    Sketcher.Constraint("Coincident", 0, 2, 1, 1),
    Sketcher.Constraint("Coincident", 1, 2, 2, 1),
    Sketcher.Constraint("Tangent", 2, 2, 3, 2),
    Sketcher.Constraint("Tangent", 3, 1, 4, 1),
    Sketcher.Constraint("Tangent", 4, 2, 5, 2),
    Sketcher.Constraint("Tangent", 5, 1, 6, 1),
    Sketcher.Constraint("Tangent", 6, 2, 7, 1),
    Sketcher.Constraint("Tangent", 7, 2, 8, 1),
    Sketcher.Constraint("Coincident", 8, 2, 9, 1),
    Sketcher.Constraint("Coincident", 9, 2, 0, 1),
    Sketcher.Constraint("Horizontal", 1),
    Sketcher.Constraint("Vertical", 2),
    Sketcher.Constraint("Horizontal", 4),
    Sketcher.Constraint("Vertical", 6),
    Sketcher.Constraint("Horizontal", 8),
    Sketcher.Constraint("Vertical", 9),
    Sketcher.Constraint("Angle", 0, Q("-135 deg")),
    Sketcher.Constraint("DistanceX", -1, 1, 0, 2, 0.9),
    Sketcher.Constraint("DistanceY", 0, 2, -1, 1, 1.6),
    Sketcher.Constraint("Radius", 3, 0.137799),
    Sketcher.Constraint("DistanceX", -1, 1, 8, 2, 1.05),
    Sketcher.Constraint("Radius", 5, 0.097657),
    Sketcher.Constraint("Radius", 7, 0.074697),
    Sketcher.Constraint("DistanceX", 8, 1, 8, 2, 0.618738),
    Sketcher.Constraint("DistanceY", 2, 1, 2, 2, 0.387941),
    Sketcher.Constraint("DistanceY", 6, 2, 6, 1, 0.071022),
    Sketcher.Constraint("DistanceX", 1, 2, 1, 1, 1.348423),
])
pad10 = body10.newObject("PartDesign::Pad", "Pad009")
pad10.Profile = sketch17
pad10.Length = 0.01
pad10.Reversed = True
body11 = doc.addObject("PartDesign::Body", "Body010")

sketch18 = body11.newObject("Sketcher::SketchObject", "Sketch017")
sketch18.AttachmentSupport = (doc.getObject("XZ_Plane010"), [""])
sketch18.MapMode = "FlatFace"
sketch18.AttachmentOffset = App.Placement(Vector(0, 0, -0.9), App.Rotation())
sketch18.addGeometry([
    Part.LineSegment(Vector(1.05, -0.65, 0), Vector(1.05, -1.14, 0)),
    Part.LineSegment(Vector(1.05, -1.14, 0), Vector(0.6, -1.14, 0)),
    Part.ArcOfCircle(Part.Circle(Vector(0.6, -0.99, 0), Vector(0, 0, 1), 0.14), math.radians(180), math.radians(270)),
    Part.LineSegment(Vector(0.46, -0.99, 0), Vector(0.46, -0.5, 0)),
    Part.LineSegment(Vector(0.46, -0.5, 0), Vector(0.9, -0.5, 0)),
    Part.LineSegment(Vector(0.9, -0.5, 0), Vector(1.05, -0.65, 0)),
], False)
sketch18.addConstraint([
    Sketcher.Constraint("Coincident", 0, 2, 1, 1),
    Sketcher.Constraint("Tangent", 1, 2, 2, 2),
    Sketcher.Constraint("Tangent", 2, 1, 3, 1),
    Sketcher.Constraint("Coincident", 3, 2, 4, 1),
    Sketcher.Constraint("Coincident", 4, 2, 5, 1),
    Sketcher.Constraint("Coincident", 5, 2, 0, 1),
    Sketcher.Constraint("Vertical", 0),
    Sketcher.Constraint("Horizontal", 1),
    Sketcher.Constraint("Vertical", 3),
    Sketcher.Constraint("Horizontal", 4),
    Sketcher.Constraint("Angle", 5, Q("-45 deg")),
    Sketcher.Constraint("DistanceY", 3, 2, -1, 1, 0.5),
    Sketcher.Constraint("DistanceX", -1, 1, 4, 2, 0.9),
    Sketcher.Constraint("DistanceX", -1, 1, 0, 2, 1.05),
    Sketcher.Constraint("Radius", 2, 0.141917),
    Sketcher.Constraint("DistanceX", 1, 2, 1, 1, 0.447879),
    Sketcher.Constraint("DistanceY", 3, 1, 3, 2, 0.49449),
])
pad11 = body11.newObject("PartDesign::Pad", "Pad010")
pad11.Profile = sketch18
pad11.Length = 0.01
pad11.Reversed = True
body12 = doc.addObject("PartDesign::Body", "Body011")

sketch19 = body12.newObject("Sketcher::SketchObject", "Sketch018")
sketch19.AttachmentSupport = (doc.getObject("XZ_Plane011"), [""])
sketch19.MapMode = "FlatFace"
sketch19.AttachmentOffset = App.Placement(Vector(0, 0, -0.9), App.Rotation())
sketch19.addGeometry([
    Part.LineSegment(Vector(-0.9, -0.5, 0), Vector(0.24, -0.5, 0)),
    Part.LineSegment(Vector(0.24, -0.5, 0), Vector(0.24, -0.877, 0)),
    Part.LineSegment(Vector(0.24, -0.877, 0), Vector(-0.506, -0.877, 0)),
    Part.ArcOfCircle(Part.Circle(Vector(-0.506, -0.916, 0), Vector(0, 0, 1), 0.039), math.radians(90), math.radians(180)),
    Part.LineSegment(Vector(-0.546, -0.916, 0), Vector(-0.546, -0.966, 0)),
    Part.ArcOfCircle(Part.Circle(Vector(-0.608, -0.966, 0), Vector(0, 0, 1), 0.062), math.radians(-90), math.radians(0)),
    Part.LineSegment(Vector(-0.608, -1.029, 0), Vector(-1.05, -1.029, 0)),
    Part.LineSegment(Vector(-1.05, -1.029, 0), Vector(-1.05, -0.65, 0)),
    Part.LineSegment(Vector(-1.05, -0.65, 0), Vector(-0.9, -0.5, 0)),
], False)
sketch19.addConstraint([
    Sketcher.Constraint("Coincident", 0, 2, 1, 1),
    Sketcher.Constraint("Coincident", 1, 2, 2, 1),
    Sketcher.Constraint("Tangent", 2, 2, 3, 1),
    Sketcher.Constraint("Tangent", 3, 2, 4, 1),
    Sketcher.Constraint("Tangent", 4, 2, 5, 2),
    Sketcher.Constraint("Tangent", 5, 1, 6, 1),
    Sketcher.Constraint("Coincident", 6, 2, 7, 1),
    Sketcher.Constraint("Coincident", 7, 2, 8, 1),
    Sketcher.Constraint("Coincident", 8, 2, 0, 1),
    Sketcher.Constraint("Horizontal", 0),
    Sketcher.Constraint("Vertical", 1),
    Sketcher.Constraint("Horizontal", 2),
    Sketcher.Constraint("Vertical", 4),
    Sketcher.Constraint("Horizontal", 6),
    Sketcher.Constraint("Vertical", 7),
    Sketcher.Constraint("Angle", 8, Q("45 deg")),
    Sketcher.Constraint("DistanceY", 0, 2, -1, 1, 0.5),
    Sketcher.Constraint("DistanceX", 8, 2, -1, 1, 0.9),
    Sketcher.Constraint("DistanceX", 6, 2, -1, 1, 1.05),
    Sketcher.Constraint("Radius", 3, 0.039484),
    Sketcher.Constraint("Radius", 5, 0.062436),
    Sketcher.Constraint("DistanceX", 2, 2, 2, 1, 0.74659),
    Sketcher.Constraint("DistanceY", 7, 1, 7, 2, 0.37888),
    Sketcher.Constraint("DistanceX", 0, 1, 0, 2, 1.140206),
    Sketcher.Constraint("DistanceY", 1, 2, 1, 1, 0.376622),
])
pad12 = body12.newObject("PartDesign::Pad", "Pad011")
pad12.Profile = sketch19
pad12.Length = 0.01
pad12.Reversed = True
body13 = doc.addObject("PartDesign::Body", "Body012")

sketch20 = body13.newObject("Sketcher::SketchObject", "Sketch019")
sketch20.AttachmentSupport = (doc.getObject("XZ_Plane012"), [""])
sketch20.MapMode = "FlatFace"
sketch20.AttachmentOffset = App.Placement(Vector(0, 0, -0.9), App.Rotation())
sketch20.addGeometry([
    Part.LineSegment(Vector(-1.05, -1.45, 0), Vector(-1.05, -1.28, 0)),
    Part.LineSegment(Vector(-1.05, -1.28, 0), Vector(-0.8, -1.28, 0)),
    Part.ArcOfCircle(Part.Circle(Vector(-0.8, -1.38, 0), Vector(0, 0, 1), 0.1), math.radians(0), math.radians(90)),
    Part.LineSegment(Vector(-0.7, -1.38, 0), Vector(-0.7, -1.6, 0)),
    Part.LineSegment(Vector(-0.7, -1.6, 0), Vector(-0.9, -1.6, 0)),
    Part.LineSegment(Vector(-0.9, -1.6, 0), Vector(-1.05, -1.45, 0)),
], False)
sketch20.addConstraint([
    Sketcher.Constraint("Coincident", 0, 2, 1, 1),
    Sketcher.Constraint("Tangent", 1, 2, 2, 2),
    Sketcher.Constraint("Tangent", 2, 1, 3, 1),
    Sketcher.Constraint("Coincident", 3, 2, 4, 1),
    Sketcher.Constraint("Coincident", 4, 2, 5, 1),
    Sketcher.Constraint("Coincident", 5, 2, 0, 1),
    Sketcher.Constraint("Vertical", 0),
    Sketcher.Constraint("Horizontal", 1),
    Sketcher.Constraint("Vertical", 3),
    Sketcher.Constraint("Horizontal", 4),
    Sketcher.Constraint("Angle", 5, Q("135 deg")),
    Sketcher.Constraint("DistanceY", 3, 2, -1, 1, 1.6),
    Sketcher.Constraint("DistanceX", 4, 2, -1, 1, 0.9),
    Sketcher.Constraint("DistanceX", 0, 2, -1, 1, 1.05),
    Sketcher.Constraint("Radius", 2, 0.097356),
    Sketcher.Constraint("DistanceX", 4, 2, 4, 1, 0.20105),
    Sketcher.Constraint("DistanceY", 0, 1, 0, 2, 0.171759),
])
pad13 = body13.newObject("PartDesign::Pad", "Pad012")
pad13.Profile = sketch20
pad13.Length = 0.01
pad13.Reversed = True
body14 = doc.addObject("PartDesign::Body", "Body013")

sketch21 = body14.newObject("Sketcher::SketchObject", "Sketch020")
sketch21.AttachmentSupport = (doc.getObject("XZ_Plane013"), [""])
sketch21.MapMode = "FlatFace"
sketch21.AttachmentOffset = App.Placement(Vector(0, 0, -0.91), App.Rotation())
add_polygon(sketch21, [(-0.2, -1.53), (-0.2, -1.13), (0.2, -1.13), (0.2, -1.53)])
sketch21.addConstraint([
    Sketcher.Constraint("Vertical", 0),
    Sketcher.Constraint("Horizontal", 1),
    Sketcher.Constraint("Vertical", 2),
    Sketcher.Constraint("Horizontal", 3),
    Sketcher.Constraint("Equal", 3, 0),
    Sketcher.Constraint("DistanceX", 1, 1, 1, 2, 0.4),
    Sketcher.Constraint("DistanceX", 0, 2, -1, 1, 0.2),
    Sketcher.Constraint("DistanceY", 0, 2, -1, 1, 1.134129),
])
pad14 = body14.newObject("PartDesign::Pad", "Pad013")
pad14.Profile = sketch21
pad14.Length = 0.03
pad14.Reversed = True

doc.recompute()
